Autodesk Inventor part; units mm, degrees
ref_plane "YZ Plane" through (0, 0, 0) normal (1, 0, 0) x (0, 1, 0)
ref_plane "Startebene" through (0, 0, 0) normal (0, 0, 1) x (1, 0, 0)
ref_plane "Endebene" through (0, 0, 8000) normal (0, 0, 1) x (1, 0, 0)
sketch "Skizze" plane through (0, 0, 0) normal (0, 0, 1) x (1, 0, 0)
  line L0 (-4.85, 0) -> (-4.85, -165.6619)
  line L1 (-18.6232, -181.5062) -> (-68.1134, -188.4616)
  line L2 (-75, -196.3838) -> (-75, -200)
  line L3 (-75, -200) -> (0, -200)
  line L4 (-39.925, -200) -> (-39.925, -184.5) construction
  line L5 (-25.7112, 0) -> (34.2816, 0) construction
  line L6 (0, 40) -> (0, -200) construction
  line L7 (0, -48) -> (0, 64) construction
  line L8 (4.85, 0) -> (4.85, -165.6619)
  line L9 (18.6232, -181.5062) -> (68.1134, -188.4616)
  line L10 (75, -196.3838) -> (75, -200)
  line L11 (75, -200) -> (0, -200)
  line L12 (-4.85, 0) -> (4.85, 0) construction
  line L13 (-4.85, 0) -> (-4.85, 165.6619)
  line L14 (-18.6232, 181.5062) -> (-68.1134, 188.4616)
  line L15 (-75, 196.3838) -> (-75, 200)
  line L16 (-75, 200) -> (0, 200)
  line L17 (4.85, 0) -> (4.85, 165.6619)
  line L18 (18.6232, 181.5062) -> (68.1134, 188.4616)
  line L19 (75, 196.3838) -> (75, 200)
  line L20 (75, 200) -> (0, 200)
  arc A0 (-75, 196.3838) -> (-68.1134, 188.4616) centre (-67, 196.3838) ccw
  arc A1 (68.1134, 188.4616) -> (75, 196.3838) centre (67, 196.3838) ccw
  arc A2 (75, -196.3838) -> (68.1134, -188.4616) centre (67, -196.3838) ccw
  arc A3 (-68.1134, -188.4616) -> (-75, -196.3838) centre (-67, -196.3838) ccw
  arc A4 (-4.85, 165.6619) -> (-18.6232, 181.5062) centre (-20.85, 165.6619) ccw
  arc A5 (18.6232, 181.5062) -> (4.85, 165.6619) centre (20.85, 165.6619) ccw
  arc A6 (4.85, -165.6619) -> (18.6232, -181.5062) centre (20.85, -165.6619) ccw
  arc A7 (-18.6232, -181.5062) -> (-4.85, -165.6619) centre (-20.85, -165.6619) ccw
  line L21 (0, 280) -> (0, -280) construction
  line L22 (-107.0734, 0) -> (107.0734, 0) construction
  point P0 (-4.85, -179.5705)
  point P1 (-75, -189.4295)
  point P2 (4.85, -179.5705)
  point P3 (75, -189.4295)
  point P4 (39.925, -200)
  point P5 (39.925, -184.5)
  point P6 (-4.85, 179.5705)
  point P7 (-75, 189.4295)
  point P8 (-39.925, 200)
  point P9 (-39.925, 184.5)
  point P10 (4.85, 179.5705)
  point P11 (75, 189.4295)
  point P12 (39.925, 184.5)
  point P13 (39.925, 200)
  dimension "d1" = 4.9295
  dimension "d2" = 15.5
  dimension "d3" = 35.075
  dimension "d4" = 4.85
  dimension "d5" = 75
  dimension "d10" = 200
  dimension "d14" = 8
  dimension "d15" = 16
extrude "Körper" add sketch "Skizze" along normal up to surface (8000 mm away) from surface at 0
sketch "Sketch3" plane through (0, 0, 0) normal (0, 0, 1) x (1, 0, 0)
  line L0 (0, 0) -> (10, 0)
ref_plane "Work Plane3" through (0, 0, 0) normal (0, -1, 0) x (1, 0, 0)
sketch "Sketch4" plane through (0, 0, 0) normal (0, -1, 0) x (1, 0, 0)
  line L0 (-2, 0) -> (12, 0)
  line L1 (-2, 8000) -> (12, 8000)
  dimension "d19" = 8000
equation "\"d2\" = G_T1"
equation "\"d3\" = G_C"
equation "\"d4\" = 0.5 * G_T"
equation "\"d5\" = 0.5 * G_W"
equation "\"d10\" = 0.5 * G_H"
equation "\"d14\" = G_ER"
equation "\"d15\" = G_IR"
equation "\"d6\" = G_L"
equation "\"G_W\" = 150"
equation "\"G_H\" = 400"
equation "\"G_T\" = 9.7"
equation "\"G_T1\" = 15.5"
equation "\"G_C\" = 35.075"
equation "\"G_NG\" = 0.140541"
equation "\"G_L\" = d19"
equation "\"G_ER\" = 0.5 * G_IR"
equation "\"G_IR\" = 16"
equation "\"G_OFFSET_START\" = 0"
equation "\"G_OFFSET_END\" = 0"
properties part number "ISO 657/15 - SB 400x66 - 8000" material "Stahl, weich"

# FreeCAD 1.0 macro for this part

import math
import FreeCAD as App
import Part
import Sketcher
from FreeCAD import Vector
Q = App.Units.Quantity

doc = App.newDocument("Part")
body = doc.addObject("PartDesign::Body", "Body")

# Sketch on XY plane
sketch1 = body.newObject("Sketcher::SketchObject", "Sketch")
sketch1.AttachmentSupport = (doc.getObject("XY_Plane"), [""])
sketch1.MapMode = "FlatFace"
sketch1.addGeometry([
    Part.LineSegment(Vector(-4.8, 165.7, 0), Vector(-4.8, -165.7, 0)),  # 0
    Part.ArcOfCircle(Part.Circle(Vector(-20.9, -165.7, 0), Vector(0, 0, 1), 16), math.radians(-82), math.radians(0)),  # 1
    Part.LineSegment(Vector(-18.6, -181.5, 0), Vector(-68.1, -188.5, 0)),  # 2
    Part.ArcOfCircle(Part.Circle(Vector(-67, -196.4, 0), Vector(0, 0, 1), 8), math.radians(98), math.radians(180)),  # 3
    Part.LineSegment(Vector(-75, -196.4, 0), Vector(-75, -200, 0)),  # 4
    Part.LineSegment(Vector(-75, -200, 0), Vector(75, -200, 0)),  # 5
    Part.LineSegment(Vector(75, -200, 0), Vector(75, -196.4, 0)),  # 6
    Part.ArcOfCircle(Part.Circle(Vector(67, -196.4, 0), Vector(0, 0, 1), 8), math.radians(0), math.radians(82)),  # 7
    Part.LineSegment(Vector(68.1, -188.5, 0), Vector(18.6, -181.5, 0)),  # 8
    Part.ArcOfCircle(Part.Circle(Vector(20.9, -165.7, 0), Vector(0, 0, 1), 16), math.radians(180), math.radians(262)),  # 9
    Part.LineSegment(Vector(4.8, -165.7, 0), Vector(4.8, 165.7, 0)),  # 10
    Part.ArcOfCircle(Part.Circle(Vector(20.9, 165.7, 0), Vector(0, 0, 1), 16), math.radians(98), math.radians(180)),  # 11
    Part.LineSegment(Vector(18.6, 181.5, 0), Vector(68.1, 188.5, 0)),  # 12
    Part.ArcOfCircle(Part.Circle(Vector(67, 196.4, 0), Vector(0, 0, 1), 8), math.radians(-82), math.radians(0)),  # 13
    Part.LineSegment(Vector(75, 196.4, 0), Vector(75, 200, 0)),  # 14
    Part.LineSegment(Vector(75, 200, 0), Vector(-75, 200, 0)),  # 15
    Part.LineSegment(Vector(-75, 200, 0), Vector(-75, 196.4, 0)),  # 16
    Part.ArcOfCircle(Part.Circle(Vector(-67, 196.4, 0), Vector(0, 0, 1), 8), math.radians(180), math.radians(262)),  # 17
    Part.LineSegment(Vector(-68.1, 188.5, 0), Vector(-18.6, 181.5, 0)),  # 18
    Part.ArcOfCircle(Part.Circle(Vector(-20.9, 165.7, 0), Vector(0, 0, 1), 16), math.radians(0), math.radians(82)),  # 19
], False)
sketch1.addConstraint([
    Sketcher.Constraint("Tangent", 0, 2, 1, 2),
    Sketcher.Constraint("Tangent", 1, 1, 2, 1),
    Sketcher.Constraint("Tangent", 2, 2, 3, 1),
    Sketcher.Constraint("Tangent", 3, 2, 4, 1),
    Sketcher.Constraint("Coincident", 4, 2, 5, 1),
    Sketcher.Constraint("Coincident", 5, 2, 6, 1),
    Sketcher.Constraint("Tangent", 6, 2, 7, 1),
    Sketcher.Constraint("Tangent", 7, 2, 8, 1),
    Sketcher.Constraint("Tangent", 8, 2, 9, 2),
    Sketcher.Constraint("Tangent", 9, 1, 10, 1),
    Sketcher.Constraint("Tangent", 10, 2, 11, 2),
    Sketcher.Constraint("Tangent", 11, 1, 12, 1),
    Sketcher.Constraint("Tangent", 12, 2, 13, 1),
    Sketcher.Constraint("Tangent", 13, 2, 14, 1),
    Sketcher.Constraint("Coincident", 14, 2, 15, 1),
    Sketcher.Constraint("Coincident", 15, 2, 16, 1),
    Sketcher.Constraint("Tangent", 16, 2, 17, 1),
    Sketcher.Constraint("Tangent", 17, 2, 18, 1),
    Sketcher.Constraint("Tangent", 18, 2, 19, 2),
    Sketcher.Constraint("Tangent", 19, 1, 0, 1),
    Sketcher.Constraint("Vertical", 0),
    Sketcher.Constraint("Vertical", 4),
    Sketcher.Constraint("Horizontal", 5),
    Sketcher.Constraint("Vertical", 6),
    Sketcher.Constraint("Vertical", 10),
    Sketcher.Constraint("Vertical", 14),
    Sketcher.Constraint("Horizontal", 15),
    Sketcher.Constraint("Vertical", 16),
    Sketcher.Constraint("Equal", 3, 7),
    Sketcher.Constraint("Equal", 1, 9),
    Sketcher.Constraint("Equal", 9, 11),
    Sketcher.Constraint("Equal", 7, 13),
    Sketcher.Constraint("Equal", 13, 17),
    Sketcher.Constraint("Equal", 11, 19),
    Sketcher.Constraint("Symmetric", 1, 3, 11, 3, -1, 1),
    Sketcher.Constraint("Symmetric", 3, 3, 13, 3, -1, 1),
    Sketcher.Constraint("Symmetric", 7, 3, 17, 3, -1, 1),
    Sketcher.Constraint("Symmetric", 3, 3, 7, 3, -2),
    Sketcher.Constraint("Parallel", 8, 18),
    Sketcher.Constraint("Horizontal", 1, 3, 9, 3),
    Sketcher.Constraint("Equal", 6, 14),
    Sketcher.Constraint("Radius", 1, 16.0),
    Sketcher.Constraint("Radius", 3, 8.0),
    Sketcher.Constraint("Angle", 12, Q("8 deg")),
    Sketcher.Constraint("DistanceX", 3, 2, -1, 1, 75.0),
    Sketcher.Constraint("DistanceY", 4, 2, -1, 1, 200.0),
    Sketcher.Constraint("DistanceX", 0, 2, -1, 1, 4.85),
    Sketcher.Constraint("DistanceY", 0, 2, 0, 1, 331.3238),
])
pad1 = body.newObject("PartDesign::Pad", "Pad")
pad1.Profile = sketch1
pad1.Length = 8000

doc.recompute()
